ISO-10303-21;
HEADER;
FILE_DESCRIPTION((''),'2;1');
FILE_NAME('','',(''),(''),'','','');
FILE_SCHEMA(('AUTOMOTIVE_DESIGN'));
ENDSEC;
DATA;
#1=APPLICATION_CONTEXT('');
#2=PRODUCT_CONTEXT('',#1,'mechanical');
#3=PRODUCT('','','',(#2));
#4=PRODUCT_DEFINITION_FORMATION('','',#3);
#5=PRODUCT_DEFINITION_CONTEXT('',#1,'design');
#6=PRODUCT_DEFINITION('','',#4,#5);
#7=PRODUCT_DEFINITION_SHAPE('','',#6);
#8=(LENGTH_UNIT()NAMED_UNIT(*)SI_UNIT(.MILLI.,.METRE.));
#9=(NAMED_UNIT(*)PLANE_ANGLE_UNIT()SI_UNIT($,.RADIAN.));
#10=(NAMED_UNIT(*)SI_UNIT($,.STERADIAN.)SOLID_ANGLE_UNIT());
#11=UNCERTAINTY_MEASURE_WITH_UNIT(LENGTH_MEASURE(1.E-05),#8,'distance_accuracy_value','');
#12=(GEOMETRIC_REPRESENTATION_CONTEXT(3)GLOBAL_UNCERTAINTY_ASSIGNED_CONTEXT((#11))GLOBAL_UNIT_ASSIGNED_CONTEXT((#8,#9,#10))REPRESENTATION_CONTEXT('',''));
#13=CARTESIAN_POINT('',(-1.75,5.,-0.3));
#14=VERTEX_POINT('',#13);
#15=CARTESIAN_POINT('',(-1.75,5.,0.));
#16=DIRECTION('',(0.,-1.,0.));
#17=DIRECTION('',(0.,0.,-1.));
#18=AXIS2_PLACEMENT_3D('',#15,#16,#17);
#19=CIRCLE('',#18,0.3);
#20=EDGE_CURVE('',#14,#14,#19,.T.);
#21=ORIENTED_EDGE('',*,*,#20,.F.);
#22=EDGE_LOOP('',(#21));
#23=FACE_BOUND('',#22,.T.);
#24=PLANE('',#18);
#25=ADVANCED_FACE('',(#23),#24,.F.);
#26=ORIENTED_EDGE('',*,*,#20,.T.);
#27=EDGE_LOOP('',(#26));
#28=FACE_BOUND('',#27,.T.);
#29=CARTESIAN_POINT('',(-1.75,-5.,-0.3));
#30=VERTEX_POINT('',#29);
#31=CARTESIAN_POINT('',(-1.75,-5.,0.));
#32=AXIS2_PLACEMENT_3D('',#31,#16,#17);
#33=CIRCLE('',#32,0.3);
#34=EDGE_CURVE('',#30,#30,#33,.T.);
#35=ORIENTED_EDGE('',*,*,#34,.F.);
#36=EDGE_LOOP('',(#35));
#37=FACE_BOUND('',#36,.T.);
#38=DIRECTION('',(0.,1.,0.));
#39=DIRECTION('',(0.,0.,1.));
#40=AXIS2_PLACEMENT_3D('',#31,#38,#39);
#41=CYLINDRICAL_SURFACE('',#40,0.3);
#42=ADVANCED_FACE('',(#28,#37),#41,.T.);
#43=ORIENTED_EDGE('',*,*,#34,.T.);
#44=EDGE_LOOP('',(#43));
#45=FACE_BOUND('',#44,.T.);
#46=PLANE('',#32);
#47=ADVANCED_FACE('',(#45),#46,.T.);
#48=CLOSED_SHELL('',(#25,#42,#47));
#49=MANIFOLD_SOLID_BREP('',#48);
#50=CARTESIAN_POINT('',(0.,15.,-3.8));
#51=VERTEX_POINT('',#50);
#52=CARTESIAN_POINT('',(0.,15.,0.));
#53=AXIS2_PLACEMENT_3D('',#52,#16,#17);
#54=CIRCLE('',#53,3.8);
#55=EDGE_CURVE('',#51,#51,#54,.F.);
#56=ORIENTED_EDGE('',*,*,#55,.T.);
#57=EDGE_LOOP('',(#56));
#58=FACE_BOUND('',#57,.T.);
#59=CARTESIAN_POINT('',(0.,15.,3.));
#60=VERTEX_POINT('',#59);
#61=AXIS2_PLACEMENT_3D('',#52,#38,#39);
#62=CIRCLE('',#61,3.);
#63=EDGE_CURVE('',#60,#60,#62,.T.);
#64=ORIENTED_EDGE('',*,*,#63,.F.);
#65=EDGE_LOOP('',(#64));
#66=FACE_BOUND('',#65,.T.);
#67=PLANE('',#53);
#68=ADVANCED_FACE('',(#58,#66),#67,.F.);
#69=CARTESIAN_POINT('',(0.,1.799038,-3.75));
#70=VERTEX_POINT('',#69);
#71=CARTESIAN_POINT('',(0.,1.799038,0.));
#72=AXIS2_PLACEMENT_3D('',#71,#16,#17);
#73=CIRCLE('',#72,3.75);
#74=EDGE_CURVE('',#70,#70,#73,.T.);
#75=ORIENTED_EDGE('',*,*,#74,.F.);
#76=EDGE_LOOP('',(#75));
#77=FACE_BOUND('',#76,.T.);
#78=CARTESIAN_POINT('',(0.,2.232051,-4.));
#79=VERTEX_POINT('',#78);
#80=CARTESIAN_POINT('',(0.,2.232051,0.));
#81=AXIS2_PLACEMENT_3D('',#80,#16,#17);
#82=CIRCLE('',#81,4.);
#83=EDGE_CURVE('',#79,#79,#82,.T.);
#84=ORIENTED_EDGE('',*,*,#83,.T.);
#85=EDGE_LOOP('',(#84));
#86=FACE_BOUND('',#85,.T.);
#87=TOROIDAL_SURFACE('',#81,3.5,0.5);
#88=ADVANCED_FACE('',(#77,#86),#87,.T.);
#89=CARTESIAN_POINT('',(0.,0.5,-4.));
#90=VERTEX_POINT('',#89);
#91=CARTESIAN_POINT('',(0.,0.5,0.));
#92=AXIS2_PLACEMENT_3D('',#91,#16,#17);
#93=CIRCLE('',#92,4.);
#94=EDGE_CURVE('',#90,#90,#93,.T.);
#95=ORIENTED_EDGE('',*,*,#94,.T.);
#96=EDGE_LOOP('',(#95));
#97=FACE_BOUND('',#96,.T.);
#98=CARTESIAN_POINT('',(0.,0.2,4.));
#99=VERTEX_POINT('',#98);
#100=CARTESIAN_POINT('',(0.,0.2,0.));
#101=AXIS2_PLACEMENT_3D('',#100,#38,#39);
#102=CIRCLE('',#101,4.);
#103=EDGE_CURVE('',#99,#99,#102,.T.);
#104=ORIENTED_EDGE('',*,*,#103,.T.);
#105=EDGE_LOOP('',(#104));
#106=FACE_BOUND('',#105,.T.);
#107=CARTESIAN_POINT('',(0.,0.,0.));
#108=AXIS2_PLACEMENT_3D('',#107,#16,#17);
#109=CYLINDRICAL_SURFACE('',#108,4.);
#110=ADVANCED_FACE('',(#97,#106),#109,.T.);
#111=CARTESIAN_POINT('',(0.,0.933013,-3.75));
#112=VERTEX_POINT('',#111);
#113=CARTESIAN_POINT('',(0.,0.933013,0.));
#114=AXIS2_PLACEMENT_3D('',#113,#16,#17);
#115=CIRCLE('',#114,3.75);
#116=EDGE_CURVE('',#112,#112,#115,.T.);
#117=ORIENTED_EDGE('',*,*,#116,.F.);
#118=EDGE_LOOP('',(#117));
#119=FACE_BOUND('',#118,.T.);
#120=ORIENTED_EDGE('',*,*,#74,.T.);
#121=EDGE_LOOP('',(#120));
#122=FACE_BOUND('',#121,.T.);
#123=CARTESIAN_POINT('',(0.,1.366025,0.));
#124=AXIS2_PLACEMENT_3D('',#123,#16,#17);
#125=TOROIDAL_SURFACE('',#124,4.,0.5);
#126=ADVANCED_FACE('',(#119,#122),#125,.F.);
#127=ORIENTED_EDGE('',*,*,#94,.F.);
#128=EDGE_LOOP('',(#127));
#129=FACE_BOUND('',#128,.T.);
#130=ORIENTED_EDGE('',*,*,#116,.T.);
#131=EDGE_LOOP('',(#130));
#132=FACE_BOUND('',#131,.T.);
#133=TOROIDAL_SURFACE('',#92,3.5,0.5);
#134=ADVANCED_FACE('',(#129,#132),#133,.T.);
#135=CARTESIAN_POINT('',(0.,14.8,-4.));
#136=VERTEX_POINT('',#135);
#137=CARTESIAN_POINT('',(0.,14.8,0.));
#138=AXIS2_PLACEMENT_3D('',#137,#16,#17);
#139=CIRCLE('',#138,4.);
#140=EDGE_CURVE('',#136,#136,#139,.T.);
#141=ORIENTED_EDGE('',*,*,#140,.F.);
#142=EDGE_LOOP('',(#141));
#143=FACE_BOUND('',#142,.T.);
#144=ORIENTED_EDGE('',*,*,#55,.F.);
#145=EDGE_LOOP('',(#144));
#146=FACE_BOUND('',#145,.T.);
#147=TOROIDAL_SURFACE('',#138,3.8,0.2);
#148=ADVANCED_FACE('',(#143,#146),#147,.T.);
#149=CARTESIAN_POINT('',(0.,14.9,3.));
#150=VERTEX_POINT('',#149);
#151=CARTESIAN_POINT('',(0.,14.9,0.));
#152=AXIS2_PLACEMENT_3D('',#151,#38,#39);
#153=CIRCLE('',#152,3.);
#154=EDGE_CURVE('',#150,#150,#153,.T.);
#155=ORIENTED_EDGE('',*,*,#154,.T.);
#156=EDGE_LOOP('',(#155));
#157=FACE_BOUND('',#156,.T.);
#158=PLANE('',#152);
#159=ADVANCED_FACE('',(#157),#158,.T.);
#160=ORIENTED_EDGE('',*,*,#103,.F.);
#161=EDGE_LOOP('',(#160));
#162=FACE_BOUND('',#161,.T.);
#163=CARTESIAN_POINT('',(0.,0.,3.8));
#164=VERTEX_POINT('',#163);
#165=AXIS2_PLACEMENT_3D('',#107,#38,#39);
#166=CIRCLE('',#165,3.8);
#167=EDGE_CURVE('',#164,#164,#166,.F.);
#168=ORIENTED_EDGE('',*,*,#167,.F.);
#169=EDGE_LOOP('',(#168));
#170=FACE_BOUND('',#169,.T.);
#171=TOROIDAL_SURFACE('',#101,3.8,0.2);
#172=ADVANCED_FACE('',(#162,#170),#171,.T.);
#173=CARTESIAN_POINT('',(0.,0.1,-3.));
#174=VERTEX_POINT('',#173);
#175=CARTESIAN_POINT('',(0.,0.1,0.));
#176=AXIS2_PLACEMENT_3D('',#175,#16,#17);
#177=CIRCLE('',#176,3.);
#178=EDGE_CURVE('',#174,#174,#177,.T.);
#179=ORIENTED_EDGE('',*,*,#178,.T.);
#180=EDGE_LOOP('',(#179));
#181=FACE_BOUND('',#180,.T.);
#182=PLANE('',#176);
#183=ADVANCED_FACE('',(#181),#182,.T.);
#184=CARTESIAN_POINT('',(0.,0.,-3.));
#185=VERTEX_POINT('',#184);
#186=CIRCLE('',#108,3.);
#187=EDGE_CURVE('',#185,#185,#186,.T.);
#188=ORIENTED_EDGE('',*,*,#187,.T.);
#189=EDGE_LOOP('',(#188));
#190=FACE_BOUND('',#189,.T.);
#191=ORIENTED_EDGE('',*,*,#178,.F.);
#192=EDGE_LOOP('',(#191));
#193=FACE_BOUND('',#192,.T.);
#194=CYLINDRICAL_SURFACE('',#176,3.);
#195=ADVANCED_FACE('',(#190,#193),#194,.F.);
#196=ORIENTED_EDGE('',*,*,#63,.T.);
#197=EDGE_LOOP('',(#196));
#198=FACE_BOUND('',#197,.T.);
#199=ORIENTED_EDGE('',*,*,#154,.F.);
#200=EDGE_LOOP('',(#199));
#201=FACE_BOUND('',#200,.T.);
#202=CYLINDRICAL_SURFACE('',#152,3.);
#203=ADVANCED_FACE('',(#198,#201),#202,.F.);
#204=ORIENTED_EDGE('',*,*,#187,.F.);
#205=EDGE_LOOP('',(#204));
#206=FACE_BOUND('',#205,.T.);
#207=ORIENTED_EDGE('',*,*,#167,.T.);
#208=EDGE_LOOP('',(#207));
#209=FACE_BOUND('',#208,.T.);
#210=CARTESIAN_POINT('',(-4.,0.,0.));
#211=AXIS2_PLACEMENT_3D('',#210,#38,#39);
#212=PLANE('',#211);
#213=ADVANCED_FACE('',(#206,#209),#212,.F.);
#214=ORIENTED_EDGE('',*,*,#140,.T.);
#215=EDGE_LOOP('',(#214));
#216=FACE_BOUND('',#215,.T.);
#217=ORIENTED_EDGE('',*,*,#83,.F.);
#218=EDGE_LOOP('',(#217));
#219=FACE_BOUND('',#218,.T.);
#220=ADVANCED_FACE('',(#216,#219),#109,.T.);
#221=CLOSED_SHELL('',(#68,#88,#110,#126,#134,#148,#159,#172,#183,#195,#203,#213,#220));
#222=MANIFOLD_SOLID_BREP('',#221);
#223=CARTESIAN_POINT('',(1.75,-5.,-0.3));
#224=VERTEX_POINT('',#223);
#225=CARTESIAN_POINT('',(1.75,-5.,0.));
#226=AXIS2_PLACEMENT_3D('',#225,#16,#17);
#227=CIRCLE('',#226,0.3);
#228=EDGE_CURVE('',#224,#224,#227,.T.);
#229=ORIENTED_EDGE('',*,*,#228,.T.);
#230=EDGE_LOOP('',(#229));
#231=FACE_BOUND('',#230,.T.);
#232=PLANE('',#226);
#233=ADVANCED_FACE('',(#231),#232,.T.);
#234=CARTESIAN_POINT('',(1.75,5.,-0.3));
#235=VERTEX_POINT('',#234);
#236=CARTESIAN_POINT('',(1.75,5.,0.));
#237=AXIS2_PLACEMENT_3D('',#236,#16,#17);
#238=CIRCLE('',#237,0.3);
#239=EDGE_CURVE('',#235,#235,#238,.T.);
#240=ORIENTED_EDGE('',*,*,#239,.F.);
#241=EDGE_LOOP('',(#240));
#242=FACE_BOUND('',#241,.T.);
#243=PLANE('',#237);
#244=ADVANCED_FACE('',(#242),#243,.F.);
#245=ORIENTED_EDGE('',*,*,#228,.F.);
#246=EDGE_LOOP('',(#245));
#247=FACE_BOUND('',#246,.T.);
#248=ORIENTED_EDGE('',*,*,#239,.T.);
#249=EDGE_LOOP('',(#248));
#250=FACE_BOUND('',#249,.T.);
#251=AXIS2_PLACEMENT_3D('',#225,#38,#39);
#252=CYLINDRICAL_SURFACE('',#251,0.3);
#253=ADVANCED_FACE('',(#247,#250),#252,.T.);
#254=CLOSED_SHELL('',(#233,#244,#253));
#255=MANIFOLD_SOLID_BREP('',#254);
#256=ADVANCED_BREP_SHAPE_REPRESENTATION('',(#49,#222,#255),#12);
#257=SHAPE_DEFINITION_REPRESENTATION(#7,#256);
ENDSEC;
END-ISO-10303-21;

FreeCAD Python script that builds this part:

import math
import FreeCAD as App
import Part
import Sketcher


def edges_at(feature, points):
    """Names of the edges that pass closest to the given points."""
    edges = feature.Shape.Edges
    near = lambda p: min(range(len(edges)), key=lambda i: edges[i].distToShape(Part.Vertex(*p))[0])
    return sorted({f"Edge{near(p) + 1}" for p in points})

doc = App.newDocument("Part")
body = doc.addObject("PartDesign::Body", "Body")

sketch1 = body.newObject("Sketcher::SketchObject", "Sketch")
sketch1.AttachmentSupport = (doc.getObject("XY_Plane"), [""])
sketch1.MapMode = "FlatFace"
sketch1.addGeometry([
    Part.LineSegment(App.Vector(0, 0, 0), App.Vector(0, 15, 0)),
    Part.LineSegment(App.Vector(0, 15, 0), App.Vector(-4, 15, 0)),
    Part.LineSegment(App.Vector(-4, 15, 0), App.Vector(-4, 2.2, 0)),
    Part.ArcOfCircle(Part.Circle(App.Vector(-3.5, 2.2, 0), App.Vector(0, 0, 1), 0.5), math.radians(180), math.radians(240)),
    Part.ArcOfCircle(Part.Circle(App.Vector(-4, 1.4, 0), App.Vector(0, 0, 1), 0.5), math.radians(-60), math.radians(60)),
    Part.ArcOfCircle(Part.Circle(App.Vector(-3.5, 0.5, 0), App.Vector(0, 0, 1), 0.5), math.radians(120), math.radians(180)),
    Part.LineSegment(App.Vector(-4, 0.5, 0), App.Vector(-4, 0, 0)),
    Part.LineSegment(App.Vector(-4, 0, 0), App.Vector(0, 0, 0)),
], False)
sketch1.addConstraint([
    Sketcher.Constraint("Coincident", 0, 2, 1, 1),
    Sketcher.Constraint("Coincident", 1, 2, 2, 1),
    Sketcher.Constraint("Tangent", 2, 2, 3, 1),
    Sketcher.Constraint("Tangent", 3, 2, 4, 2),
    Sketcher.Constraint("Tangent", 4, 1, 5, 1),
    Sketcher.Constraint("Tangent", 5, 2, 6, 1),
    Sketcher.Constraint("Coincident", 6, 2, 7, 1),
    Sketcher.Constraint("Coincident", 7, 2, 0, 1),
    Sketcher.Constraint("Vertical", 0),
    Sketcher.Constraint("Horizontal", 1),
    Sketcher.Constraint("Vertical", 2),
    Sketcher.Constraint("Vertical", 6),
    Sketcher.Constraint("Horizontal", 7),
    Sketcher.Constraint("Coincident", 7, 2, -1, 1),
    Sketcher.Constraint("Equal", 3, 4),
    Sketcher.Constraint("Equal", 4, 5),
    Sketcher.Constraint("Vertical", 3, 3, 5, 3),
    Sketcher.Constraint("Vertical", 4, 3, 1, 2),
    Sketcher.Constraint("Radius", 3, 0.5),
    Sketcher.Constraint("DistanceX", 1, 2, 1, 1, 4.0),
    Sketcher.Constraint("DistanceY", 0, 1, 0, 2, 15.0),
    Sketcher.Constraint("DistanceY", 6, 2, 6, 1, 0.5),
])
revolution = body.newObject("PartDesign::Revolution", "Revolution")
revolution.Profile = sketch1
revolution.ReferenceAxis = (sketch1, ["V_Axis"])
revolution.Angle = 360
doc.recompute()

fillet = body.newObject("PartDesign::Fillet", "Fillet")
fillet.Base = (revolution, edges_at(revolution, [(4, 0, 0), (4, 15, 0)]))
fillet.Radius = 0.2

sketch2 = body.newObject("Sketcher::SketchObject", "Sketch001")
sketch2.AttachmentSupport = (doc.getObject("XZ_Plane"), [""])
sketch2.MapMode = "FlatFace"
sketch2.AttachmentOffset = App.Placement(App.Vector(0, 0, -15), App.Rotation())
sketch2.addGeometry(Part.Circle(App.Vector(0, 0, 0), App.Vector(0, 0, 1), 3), False)
sketch2.addConstraint([
    Sketcher.Constraint("Coincident", 0, 3, -1, 1),
    Sketcher.Constraint("Diameter", 0, 6.0),
])
pocket1 = body.newObject("PartDesign::Pocket", "Pocket")
pocket1.Profile = sketch2
pocket1.Length = 0.1
pocket1.Reversed = True

sketch3 = body.newObject("Sketcher::SketchObject", "Sketch002")
sketch3.AttachmentSupport = (doc.getObject("XZ_Plane"), [""])
sketch3.MapMode = "FlatFace"
sketch3.addGeometry(Part.Circle(App.Vector(0, 0, 0), App.Vector(0, 0, 1), 3), False)
sketch3.addConstraint([
    Sketcher.Constraint("Coincident", 0, 3, -1, 1),
    Sketcher.Constraint("Diameter", 0, 6.0),
])
pocket2 = body.newObject("PartDesign::Pocket", "Pocket001")
pocket2.Profile = sketch3
pocket2.Length = 0.1
body2 = doc.addObject("PartDesign::Body", "Body001")

sketch4 = body2.newObject("Sketcher::SketchObject", "Sketch003")
sketch4.AttachmentSupport = (doc.getObject("XZ_Plane001"), [""])
sketch4.MapMode = "FlatFace"
sketch4.addGeometry(Part.Circle(App.Vector(-1.75, 0, 0), App.Vector(0, 0, 1), 0.3), False)
sketch4.addConstraint([
    Sketcher.Constraint("PointOnObject", 0, 3, -1),
    Sketcher.Constraint("Diameter", 0, 0.6),
    Sketcher.Constraint("DistanceX", 0, 3, -1, 1, 1.75),
])
pad1 = body2.newObject("PartDesign::Pad", "Pad")
pad1.Profile = sketch4
pad1.Length = 10
pad1.Midplane = True
body3 = doc.addObject("PartDesign::Body", "Body002")

sketch5 = body3.newObject("Sketcher::SketchObject", "Sketch004")
sketch5.AttachmentSupport = (doc.getObject("XZ_Plane002"), [""])
sketch5.MapMode = "FlatFace"
sketch5.addGeometry(Part.Circle(App.Vector(1.75, 0, 0), App.Vector(0, 0, 1), 0.3), False)
sketch5.addConstraint([
    Sketcher.Constraint("PointOnObject", 0, 3, -1),
    Sketcher.Constraint("Diameter", 0, 0.6),
    Sketcher.Constraint("DistanceX", -1, 1, 0, 3, 1.75),
])
pad2 = body3.newObject("PartDesign::Pad", "Pad001")
pad2.Profile = sketch5
pad2.Length = 10
pad2.Midplane = True

doc.recompute()
